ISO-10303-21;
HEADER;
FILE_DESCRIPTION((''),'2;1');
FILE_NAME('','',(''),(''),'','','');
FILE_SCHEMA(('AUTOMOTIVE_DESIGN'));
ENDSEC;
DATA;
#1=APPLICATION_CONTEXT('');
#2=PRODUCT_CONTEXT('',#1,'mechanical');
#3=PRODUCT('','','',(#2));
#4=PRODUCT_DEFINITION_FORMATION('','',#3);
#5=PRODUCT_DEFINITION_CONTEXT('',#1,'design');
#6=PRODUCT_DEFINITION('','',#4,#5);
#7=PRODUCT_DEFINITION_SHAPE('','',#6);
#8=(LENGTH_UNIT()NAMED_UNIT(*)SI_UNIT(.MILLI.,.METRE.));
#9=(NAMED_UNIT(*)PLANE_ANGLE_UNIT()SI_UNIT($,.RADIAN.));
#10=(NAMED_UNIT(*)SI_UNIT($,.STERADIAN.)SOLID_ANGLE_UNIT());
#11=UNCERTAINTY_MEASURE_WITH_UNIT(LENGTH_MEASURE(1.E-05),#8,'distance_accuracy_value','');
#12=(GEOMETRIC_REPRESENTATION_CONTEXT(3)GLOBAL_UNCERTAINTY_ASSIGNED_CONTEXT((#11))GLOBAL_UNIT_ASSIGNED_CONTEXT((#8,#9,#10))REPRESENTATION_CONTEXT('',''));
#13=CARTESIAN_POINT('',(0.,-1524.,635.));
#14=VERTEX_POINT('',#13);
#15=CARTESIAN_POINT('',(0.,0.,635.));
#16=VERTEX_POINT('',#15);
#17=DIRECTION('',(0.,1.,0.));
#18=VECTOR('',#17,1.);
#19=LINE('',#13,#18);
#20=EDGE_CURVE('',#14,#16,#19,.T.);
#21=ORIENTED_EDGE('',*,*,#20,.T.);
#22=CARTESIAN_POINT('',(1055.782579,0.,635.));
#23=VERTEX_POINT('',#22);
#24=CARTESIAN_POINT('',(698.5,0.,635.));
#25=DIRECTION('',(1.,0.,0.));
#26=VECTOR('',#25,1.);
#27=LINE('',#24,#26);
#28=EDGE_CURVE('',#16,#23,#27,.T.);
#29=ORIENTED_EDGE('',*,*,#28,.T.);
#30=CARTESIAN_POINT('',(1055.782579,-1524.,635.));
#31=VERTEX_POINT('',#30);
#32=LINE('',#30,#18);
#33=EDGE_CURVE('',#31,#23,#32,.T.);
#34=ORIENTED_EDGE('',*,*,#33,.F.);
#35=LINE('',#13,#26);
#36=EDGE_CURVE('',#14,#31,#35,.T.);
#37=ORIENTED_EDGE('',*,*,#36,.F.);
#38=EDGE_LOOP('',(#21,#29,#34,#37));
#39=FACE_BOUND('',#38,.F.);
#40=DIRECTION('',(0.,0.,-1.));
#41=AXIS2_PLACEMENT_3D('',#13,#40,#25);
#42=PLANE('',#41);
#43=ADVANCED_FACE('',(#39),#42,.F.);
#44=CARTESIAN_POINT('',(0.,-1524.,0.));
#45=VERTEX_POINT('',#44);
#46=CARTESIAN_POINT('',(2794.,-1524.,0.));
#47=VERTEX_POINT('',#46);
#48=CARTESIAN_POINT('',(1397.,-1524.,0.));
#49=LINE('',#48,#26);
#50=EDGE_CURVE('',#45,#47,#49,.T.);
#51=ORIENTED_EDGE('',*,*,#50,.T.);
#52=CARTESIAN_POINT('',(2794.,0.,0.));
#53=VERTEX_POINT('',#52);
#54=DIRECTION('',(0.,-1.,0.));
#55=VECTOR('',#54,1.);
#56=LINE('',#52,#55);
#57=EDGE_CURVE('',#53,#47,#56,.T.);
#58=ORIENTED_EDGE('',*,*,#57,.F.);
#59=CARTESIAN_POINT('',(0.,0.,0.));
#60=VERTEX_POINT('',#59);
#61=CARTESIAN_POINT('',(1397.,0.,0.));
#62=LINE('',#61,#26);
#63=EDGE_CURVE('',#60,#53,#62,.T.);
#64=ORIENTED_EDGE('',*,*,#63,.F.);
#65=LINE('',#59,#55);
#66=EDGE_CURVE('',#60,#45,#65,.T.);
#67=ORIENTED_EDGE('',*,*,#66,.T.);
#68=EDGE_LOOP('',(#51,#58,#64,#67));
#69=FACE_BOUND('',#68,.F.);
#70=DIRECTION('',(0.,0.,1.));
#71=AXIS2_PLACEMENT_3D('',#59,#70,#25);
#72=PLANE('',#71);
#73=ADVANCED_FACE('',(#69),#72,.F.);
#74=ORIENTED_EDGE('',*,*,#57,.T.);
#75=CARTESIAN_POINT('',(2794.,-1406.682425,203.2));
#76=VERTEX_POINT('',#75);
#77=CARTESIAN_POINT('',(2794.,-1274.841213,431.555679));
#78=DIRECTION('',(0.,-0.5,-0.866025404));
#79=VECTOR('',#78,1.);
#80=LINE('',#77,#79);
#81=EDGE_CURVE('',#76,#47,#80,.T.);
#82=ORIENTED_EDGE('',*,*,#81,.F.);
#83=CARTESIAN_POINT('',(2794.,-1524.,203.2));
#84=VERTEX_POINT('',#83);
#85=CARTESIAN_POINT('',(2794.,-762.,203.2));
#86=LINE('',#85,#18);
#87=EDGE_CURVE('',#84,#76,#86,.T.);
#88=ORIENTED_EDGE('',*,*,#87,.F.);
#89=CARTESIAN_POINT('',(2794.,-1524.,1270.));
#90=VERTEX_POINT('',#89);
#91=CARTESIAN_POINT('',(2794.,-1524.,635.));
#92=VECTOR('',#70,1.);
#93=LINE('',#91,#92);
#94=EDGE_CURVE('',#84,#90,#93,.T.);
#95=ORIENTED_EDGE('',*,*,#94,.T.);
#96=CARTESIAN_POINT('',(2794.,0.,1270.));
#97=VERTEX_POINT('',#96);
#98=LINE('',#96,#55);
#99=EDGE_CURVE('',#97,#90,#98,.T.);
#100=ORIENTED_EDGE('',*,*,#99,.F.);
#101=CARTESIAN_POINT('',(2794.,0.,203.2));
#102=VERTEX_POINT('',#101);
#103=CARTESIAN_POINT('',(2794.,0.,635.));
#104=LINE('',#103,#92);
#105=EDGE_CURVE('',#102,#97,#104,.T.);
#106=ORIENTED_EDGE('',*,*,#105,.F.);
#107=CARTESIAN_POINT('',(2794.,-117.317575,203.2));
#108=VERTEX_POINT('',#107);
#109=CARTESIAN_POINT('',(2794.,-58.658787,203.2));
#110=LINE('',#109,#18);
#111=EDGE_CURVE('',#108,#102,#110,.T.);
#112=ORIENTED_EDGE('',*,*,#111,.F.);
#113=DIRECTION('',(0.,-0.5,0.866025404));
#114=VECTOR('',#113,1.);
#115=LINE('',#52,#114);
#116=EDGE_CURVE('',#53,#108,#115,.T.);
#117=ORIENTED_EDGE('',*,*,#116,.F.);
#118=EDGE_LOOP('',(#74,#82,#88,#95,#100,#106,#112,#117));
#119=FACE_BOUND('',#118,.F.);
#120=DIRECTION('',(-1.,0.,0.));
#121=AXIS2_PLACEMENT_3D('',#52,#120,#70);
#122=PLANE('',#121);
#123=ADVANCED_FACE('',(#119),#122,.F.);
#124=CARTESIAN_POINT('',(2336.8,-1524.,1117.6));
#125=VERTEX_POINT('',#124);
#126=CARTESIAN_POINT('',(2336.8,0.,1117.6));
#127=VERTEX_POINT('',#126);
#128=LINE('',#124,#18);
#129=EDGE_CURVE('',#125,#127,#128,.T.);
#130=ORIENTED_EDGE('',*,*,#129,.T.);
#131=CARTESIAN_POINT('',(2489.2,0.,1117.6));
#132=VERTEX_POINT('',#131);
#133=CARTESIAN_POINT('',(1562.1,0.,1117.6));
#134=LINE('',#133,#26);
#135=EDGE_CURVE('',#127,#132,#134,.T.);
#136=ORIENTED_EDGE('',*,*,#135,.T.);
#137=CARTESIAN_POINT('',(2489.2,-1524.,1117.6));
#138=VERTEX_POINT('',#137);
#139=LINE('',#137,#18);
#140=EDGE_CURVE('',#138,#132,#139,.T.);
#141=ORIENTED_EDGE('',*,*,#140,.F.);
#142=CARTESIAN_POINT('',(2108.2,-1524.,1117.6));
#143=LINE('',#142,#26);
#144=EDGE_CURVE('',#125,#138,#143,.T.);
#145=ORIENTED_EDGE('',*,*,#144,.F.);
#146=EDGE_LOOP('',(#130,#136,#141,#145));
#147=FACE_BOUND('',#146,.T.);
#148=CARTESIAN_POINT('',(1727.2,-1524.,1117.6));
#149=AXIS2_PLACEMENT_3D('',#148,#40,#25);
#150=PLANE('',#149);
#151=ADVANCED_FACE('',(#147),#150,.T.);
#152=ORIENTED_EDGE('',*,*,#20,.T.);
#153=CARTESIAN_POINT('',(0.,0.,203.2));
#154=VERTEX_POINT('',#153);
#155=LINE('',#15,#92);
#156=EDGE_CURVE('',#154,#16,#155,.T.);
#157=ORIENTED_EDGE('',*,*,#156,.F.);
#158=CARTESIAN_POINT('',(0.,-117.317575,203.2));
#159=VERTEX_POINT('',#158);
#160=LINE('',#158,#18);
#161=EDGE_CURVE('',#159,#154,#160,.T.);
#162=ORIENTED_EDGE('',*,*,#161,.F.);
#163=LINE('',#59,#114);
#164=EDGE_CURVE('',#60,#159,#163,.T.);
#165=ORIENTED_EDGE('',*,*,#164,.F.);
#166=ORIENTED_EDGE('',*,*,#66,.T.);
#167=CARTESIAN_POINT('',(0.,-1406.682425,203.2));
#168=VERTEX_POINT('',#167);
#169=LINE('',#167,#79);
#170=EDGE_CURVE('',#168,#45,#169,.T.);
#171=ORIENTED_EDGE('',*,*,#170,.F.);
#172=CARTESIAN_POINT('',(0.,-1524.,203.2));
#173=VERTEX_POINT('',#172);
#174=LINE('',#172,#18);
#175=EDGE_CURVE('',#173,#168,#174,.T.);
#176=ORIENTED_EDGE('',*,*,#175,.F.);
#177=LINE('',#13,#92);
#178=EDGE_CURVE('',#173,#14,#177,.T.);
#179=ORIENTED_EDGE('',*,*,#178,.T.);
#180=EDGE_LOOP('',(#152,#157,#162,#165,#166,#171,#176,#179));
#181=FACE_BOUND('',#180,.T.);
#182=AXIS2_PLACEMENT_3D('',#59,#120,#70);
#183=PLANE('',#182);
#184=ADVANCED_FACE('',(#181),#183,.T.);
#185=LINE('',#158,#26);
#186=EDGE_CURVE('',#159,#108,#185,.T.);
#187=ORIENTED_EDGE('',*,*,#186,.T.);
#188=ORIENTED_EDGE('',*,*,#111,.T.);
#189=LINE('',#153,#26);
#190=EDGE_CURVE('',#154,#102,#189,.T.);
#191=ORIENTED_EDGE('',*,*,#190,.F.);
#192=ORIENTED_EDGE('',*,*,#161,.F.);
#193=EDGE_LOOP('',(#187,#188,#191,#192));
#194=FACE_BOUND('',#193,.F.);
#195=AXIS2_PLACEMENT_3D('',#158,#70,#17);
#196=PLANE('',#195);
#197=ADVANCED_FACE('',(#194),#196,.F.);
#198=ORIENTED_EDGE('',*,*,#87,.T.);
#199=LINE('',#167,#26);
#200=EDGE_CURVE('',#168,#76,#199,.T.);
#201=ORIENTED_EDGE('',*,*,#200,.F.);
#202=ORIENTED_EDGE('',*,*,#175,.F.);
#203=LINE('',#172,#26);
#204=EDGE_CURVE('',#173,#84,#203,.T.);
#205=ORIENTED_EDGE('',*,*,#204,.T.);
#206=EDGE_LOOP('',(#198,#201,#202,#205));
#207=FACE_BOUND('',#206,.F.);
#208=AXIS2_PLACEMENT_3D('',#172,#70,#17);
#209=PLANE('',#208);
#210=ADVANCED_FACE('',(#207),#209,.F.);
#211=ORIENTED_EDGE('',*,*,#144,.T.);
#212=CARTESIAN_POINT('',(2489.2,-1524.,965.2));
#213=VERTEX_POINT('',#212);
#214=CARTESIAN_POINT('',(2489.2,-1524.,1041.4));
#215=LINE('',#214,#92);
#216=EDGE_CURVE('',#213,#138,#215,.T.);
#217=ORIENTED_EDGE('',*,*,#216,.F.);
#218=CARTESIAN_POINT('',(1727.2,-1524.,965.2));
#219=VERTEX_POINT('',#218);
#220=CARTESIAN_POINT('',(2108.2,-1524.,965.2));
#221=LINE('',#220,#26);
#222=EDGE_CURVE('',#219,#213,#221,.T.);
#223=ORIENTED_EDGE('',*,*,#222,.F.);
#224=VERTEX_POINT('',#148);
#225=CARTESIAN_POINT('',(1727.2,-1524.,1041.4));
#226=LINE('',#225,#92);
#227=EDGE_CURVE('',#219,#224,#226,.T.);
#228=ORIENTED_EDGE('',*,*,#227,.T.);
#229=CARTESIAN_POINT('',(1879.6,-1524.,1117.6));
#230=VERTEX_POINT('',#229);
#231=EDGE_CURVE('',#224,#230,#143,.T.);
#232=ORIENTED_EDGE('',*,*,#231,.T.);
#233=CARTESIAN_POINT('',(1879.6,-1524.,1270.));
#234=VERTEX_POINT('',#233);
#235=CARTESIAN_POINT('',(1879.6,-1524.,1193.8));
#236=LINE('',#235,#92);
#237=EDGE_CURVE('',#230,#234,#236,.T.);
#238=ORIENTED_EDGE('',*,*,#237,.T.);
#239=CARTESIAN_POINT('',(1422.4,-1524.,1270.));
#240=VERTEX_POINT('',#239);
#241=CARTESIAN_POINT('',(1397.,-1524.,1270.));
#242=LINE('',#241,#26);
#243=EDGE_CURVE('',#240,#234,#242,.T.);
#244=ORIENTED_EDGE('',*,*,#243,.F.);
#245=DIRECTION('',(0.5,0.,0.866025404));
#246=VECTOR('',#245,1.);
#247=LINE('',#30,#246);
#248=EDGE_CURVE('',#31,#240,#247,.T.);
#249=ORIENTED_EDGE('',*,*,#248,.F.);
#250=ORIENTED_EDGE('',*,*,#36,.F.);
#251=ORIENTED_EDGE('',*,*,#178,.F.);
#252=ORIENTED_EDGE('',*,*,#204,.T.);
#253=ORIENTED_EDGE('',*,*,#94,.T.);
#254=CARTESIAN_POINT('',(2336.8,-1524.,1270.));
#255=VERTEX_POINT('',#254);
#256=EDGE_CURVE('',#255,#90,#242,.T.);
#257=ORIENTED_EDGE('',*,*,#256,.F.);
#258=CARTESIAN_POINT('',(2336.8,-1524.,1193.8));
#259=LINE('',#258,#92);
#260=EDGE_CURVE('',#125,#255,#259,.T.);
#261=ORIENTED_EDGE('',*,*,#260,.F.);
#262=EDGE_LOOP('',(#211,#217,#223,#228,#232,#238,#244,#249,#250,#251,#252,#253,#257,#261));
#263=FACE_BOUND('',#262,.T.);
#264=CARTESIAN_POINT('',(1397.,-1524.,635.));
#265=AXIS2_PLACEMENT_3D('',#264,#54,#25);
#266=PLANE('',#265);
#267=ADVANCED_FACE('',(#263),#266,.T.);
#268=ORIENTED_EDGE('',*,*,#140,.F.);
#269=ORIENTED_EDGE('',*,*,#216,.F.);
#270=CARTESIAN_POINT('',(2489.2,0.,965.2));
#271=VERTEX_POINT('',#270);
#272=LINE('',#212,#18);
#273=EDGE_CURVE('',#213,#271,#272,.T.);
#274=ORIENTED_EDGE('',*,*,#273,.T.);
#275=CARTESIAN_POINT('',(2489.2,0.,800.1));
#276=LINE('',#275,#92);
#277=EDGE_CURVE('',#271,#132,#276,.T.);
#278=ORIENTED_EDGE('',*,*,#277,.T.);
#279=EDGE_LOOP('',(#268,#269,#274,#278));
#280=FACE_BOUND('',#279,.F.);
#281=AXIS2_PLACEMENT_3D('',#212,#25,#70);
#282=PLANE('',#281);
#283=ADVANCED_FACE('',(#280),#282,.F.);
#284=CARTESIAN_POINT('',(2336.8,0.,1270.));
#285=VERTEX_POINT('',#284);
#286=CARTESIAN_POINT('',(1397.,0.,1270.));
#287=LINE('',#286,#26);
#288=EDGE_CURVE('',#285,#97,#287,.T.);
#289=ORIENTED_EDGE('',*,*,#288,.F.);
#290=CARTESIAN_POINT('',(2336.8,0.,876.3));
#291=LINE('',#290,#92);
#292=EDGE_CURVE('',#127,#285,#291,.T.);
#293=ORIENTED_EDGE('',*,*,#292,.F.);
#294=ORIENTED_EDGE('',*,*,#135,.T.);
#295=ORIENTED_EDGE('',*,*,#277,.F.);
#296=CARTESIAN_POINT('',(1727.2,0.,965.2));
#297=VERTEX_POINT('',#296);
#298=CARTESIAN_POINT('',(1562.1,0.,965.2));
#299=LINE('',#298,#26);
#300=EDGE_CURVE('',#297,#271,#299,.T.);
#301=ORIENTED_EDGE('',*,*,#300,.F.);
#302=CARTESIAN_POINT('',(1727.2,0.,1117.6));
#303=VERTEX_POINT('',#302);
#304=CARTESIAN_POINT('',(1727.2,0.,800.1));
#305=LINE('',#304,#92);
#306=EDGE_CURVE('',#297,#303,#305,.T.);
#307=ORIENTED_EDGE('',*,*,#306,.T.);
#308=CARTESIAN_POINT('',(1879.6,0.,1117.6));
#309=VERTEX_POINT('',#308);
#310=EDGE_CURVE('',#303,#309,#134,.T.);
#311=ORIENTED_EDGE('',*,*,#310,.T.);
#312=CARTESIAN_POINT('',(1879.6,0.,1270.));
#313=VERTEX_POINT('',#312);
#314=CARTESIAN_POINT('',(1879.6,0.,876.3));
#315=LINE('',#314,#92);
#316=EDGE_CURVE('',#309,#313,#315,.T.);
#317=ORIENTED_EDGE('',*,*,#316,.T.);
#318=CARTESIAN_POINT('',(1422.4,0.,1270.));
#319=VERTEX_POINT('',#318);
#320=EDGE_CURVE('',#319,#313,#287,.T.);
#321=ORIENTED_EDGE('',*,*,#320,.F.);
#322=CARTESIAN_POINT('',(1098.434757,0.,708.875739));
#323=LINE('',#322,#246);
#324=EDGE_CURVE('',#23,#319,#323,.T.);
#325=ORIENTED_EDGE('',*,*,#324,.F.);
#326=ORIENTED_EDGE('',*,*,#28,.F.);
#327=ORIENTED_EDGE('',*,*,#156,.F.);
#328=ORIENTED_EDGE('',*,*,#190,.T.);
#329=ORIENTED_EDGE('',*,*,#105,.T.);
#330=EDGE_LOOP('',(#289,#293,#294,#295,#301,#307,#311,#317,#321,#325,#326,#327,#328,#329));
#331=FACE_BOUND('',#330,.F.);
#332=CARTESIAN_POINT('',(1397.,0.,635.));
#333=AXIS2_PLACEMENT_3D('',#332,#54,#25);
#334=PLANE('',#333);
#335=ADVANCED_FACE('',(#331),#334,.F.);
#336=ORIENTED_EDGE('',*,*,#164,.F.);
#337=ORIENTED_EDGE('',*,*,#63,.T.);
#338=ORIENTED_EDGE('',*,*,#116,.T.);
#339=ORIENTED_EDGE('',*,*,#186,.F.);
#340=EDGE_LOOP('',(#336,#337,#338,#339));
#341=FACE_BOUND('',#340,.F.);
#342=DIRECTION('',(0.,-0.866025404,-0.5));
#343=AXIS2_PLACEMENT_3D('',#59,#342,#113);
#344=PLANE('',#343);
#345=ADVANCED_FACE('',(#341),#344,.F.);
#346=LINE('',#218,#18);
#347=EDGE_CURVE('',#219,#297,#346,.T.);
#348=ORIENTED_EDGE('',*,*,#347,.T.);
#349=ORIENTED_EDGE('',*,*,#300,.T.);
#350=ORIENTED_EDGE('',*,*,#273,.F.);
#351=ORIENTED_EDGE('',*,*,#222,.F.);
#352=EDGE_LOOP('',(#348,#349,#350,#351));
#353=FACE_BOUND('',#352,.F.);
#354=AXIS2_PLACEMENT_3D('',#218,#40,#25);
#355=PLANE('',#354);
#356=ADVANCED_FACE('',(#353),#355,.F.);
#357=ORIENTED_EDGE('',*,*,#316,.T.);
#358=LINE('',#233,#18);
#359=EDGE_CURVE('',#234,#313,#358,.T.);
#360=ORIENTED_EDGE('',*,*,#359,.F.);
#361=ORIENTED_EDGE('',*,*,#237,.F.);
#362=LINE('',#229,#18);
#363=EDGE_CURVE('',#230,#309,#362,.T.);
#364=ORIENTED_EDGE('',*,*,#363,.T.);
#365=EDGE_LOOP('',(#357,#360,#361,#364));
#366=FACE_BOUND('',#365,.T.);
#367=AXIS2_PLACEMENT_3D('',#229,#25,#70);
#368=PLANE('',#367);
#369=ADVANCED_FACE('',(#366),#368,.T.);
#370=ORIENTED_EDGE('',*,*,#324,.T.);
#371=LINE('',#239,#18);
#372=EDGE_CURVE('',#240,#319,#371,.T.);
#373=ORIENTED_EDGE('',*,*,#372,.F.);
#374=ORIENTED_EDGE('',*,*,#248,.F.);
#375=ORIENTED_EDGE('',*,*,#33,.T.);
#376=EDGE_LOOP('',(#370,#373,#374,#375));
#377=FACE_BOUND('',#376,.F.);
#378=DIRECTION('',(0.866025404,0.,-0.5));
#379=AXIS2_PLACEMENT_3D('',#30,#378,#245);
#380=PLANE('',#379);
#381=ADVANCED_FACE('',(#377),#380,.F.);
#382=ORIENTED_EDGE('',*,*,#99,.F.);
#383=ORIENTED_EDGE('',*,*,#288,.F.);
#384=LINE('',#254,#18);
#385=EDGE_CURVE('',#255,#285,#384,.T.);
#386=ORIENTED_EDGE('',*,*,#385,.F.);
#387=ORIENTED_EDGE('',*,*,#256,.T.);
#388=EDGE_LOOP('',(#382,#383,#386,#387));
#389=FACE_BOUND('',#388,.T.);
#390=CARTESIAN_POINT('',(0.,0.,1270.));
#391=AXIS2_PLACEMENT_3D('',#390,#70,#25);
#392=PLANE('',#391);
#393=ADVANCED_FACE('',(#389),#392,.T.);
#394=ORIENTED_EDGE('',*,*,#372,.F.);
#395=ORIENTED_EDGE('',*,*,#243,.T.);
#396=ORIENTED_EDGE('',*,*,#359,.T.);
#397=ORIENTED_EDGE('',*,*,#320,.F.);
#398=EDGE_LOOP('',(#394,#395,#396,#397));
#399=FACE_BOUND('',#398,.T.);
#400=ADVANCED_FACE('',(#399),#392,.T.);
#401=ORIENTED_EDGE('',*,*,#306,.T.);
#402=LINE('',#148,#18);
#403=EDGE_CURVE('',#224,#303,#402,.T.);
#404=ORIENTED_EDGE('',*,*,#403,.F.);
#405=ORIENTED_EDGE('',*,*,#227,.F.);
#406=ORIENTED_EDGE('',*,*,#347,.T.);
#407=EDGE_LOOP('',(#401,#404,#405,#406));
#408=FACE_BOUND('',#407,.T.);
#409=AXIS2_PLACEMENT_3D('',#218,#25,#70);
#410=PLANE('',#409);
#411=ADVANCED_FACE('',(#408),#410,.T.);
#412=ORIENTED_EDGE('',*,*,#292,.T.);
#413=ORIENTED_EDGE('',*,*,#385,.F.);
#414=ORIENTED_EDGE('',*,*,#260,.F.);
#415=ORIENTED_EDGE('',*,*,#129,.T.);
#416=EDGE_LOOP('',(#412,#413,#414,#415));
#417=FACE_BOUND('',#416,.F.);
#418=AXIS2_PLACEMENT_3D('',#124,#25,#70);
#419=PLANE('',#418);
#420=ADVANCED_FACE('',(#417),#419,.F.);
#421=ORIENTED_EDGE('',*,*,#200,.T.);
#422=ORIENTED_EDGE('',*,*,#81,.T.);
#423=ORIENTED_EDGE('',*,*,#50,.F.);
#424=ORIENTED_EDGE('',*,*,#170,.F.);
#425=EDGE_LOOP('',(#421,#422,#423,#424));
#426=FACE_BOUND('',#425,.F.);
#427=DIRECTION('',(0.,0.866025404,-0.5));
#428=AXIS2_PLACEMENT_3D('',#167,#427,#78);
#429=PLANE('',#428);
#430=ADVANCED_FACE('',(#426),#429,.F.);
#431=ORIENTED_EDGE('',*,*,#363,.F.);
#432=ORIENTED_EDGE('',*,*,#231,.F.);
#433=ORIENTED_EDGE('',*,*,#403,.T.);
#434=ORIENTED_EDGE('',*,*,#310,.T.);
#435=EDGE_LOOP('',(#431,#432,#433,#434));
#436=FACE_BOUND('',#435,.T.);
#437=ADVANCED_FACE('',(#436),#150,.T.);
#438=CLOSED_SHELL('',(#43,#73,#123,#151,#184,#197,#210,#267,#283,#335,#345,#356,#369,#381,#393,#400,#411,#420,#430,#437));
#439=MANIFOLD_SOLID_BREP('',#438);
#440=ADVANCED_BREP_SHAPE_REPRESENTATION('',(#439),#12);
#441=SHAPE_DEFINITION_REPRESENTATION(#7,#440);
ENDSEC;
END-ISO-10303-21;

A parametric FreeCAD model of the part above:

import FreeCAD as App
import Part
import Sketcher
from FreeCAD import Vector
Q = App.Units.Quantity


def add_polygon(sketch, points):
    """Adds a closed chain of lines whose ends are joined by coincident constraints."""
    first, n = sketch.GeometryCount, len(points)
    for a, b in zip(points, points[1:] + points[:1]):
        sketch.addGeometry(Part.LineSegment(App.Vector(*a, 0), App.Vector(*b, 0)), False)
    for i in range(n):
        sketch.addConstraint(Sketcher.Constraint("Coincident", first + i, 2, first + (i + 1) % n, 1))

doc = App.newDocument("Part")
body = doc.addObject("PartDesign::Body", "Body")

# Sketch on XZ plane
sketch1 = body.newObject("Sketcher::SketchObject", "Sketch")
sketch1.AttachmentSupport = (doc.getObject("XZ_Plane"), [""])
sketch1.MapMode = "FlatFace"
add_polygon(sketch1, [(0, 1270), (0, 0), (2794, 0), (2794, 1270)])  # lines 0-3
sketch1.addConstraint(Sketcher.Constraint("Vertical", 0))
sketch1.addConstraint(Sketcher.Constraint("Horizontal", 1))
sketch1.addConstraint(Sketcher.Constraint("Vertical", 2))
sketch1.addConstraint(Sketcher.Constraint("Horizontal", 3))
sketch1.addConstraint(Sketcher.Constraint("Coincident", 0, 2, -1, 1))
sketch1.addConstraint(Sketcher.Constraint("DistanceX", 1, 1, 1, 2, Q("110 in")))
sketch1.addConstraint(Sketcher.Constraint("DistanceY", 0, 2, 0, 1, Q("50 in")))
pad1 = body.newObject("PartDesign::Pad", "Pad")
pad1.Profile = sketch1
pad1.Length = Q("60 in")

# Sketch on XZ plane
sketch2 = body.newObject("Sketcher::SketchObject", "Sketch001")
sketch2.AttachmentSupport = (doc.getObject("XZ_Plane"), [""])
sketch2.MapMode = "FlatFace"
sketch2.AttachmentOffset = App.Placement(Vector(0, 0, 60 * 25.4), App.Rotation())
add_polygon(sketch2, [(1727, 1118), (1727, 965), (2489, 965), (2489, 1118)])  # lines 0-3
sketch2.addConstraint(Sketcher.Constraint("Vertical", 0))
sketch2.addConstraint(Sketcher.Constraint("Horizontal", 1))
sketch2.addConstraint(Sketcher.Constraint("Vertical", 2))
sketch2.addConstraint(Sketcher.Constraint("Horizontal", 3))
sketch2.addConstraint(Sketcher.Constraint("DistanceX", 1, 1, 1, 2, Q("30 in")))
sketch2.addConstraint(Sketcher.Constraint("DistanceY", 0, 2, 0, 1, Q("6 in")))
sketch2.addConstraint(Sketcher.Constraint("DistanceX", -1, 1, 0, 2, Q("68 in")))
sketch2.addConstraint(Sketcher.Constraint("DistanceY", -1, 1, 0, 2, Q("38 in")))
pocket1 = body.newObject("PartDesign::Pocket", "Pocket")
pocket1.Profile = sketch2
pocket1.Type = "ThroughAll"

# Sketch on XZ plane
sketch3 = body.newObject("Sketcher::SketchObject", "Sketch002")
sketch3.AttachmentSupport = (doc.getObject("XZ_Plane"), [""])
sketch3.MapMode = "FlatFace"
sketch3.AttachmentOffset = App.Placement(Vector(0, 0, 60 * 25.4), App.Rotation())
add_polygon(sketch3, [(1880, 1270), (1880, 1118), (2337, 1118), (2337, 1270)])  # lines 0-3
sketch3.addConstraint(Sketcher.Constraint("Vertical", 0))
sketch3.addConstraint(Sketcher.Constraint("Horizontal", 1))
sketch3.addConstraint(Sketcher.Constraint("Vertical", 2))
sketch3.addConstraint(Sketcher.Constraint("Horizontal", 3))
sketch3.addConstraint(Sketcher.Constraint("DistanceX", 1, 1, 1, 2, Q("18 in")))
sketch3.addConstraint(Sketcher.Constraint("DistanceY", 0, 2, 0, 1, Q("6 in")))
sketch3.addConstraint(Sketcher.Constraint("DistanceX", -1, 1, 0, 2, Q("74 in")))
sketch3.addConstraint(Sketcher.Constraint("DistanceY", -1, 1, 0, 2, Q("44 in")))
pocket2 = body.newObject("PartDesign::Pocket", "Pocket001")
pocket2.Profile = sketch3
pocket2.Type = "ThroughAll"

# Sketch on XZ plane
sketch4 = body.newObject("Sketcher::SketchObject", "Sketch003")
sketch4.AttachmentSupport = (doc.getObject("XZ_Plane"), [""])
sketch4.MapMode = "FlatFace"
sketch4.AttachmentOffset = App.Placement(Vector(0, 0, 60 * 25.4), App.Rotation())
add_polygon(sketch4, [(1056, 635), (1422, 1270), (0, 1270), (0, 635)])  # lines 0-3
sketch4.addConstraint(Sketcher.Constraint("Horizontal", 1))
sketch4.addConstraint(Sketcher.Constraint("Vertical", 2))
sketch4.addConstraint(Sketcher.Constraint("Horizontal", 3))
sketch4.addConstraint(Sketcher.Constraint("PointOnObject", 1, 2, -2))
sketch4.addConstraint(Sketcher.Constraint("DistanceX", 1, 2, 1, 1, Q("56 in")))
sketch4.addConstraint(Sketcher.Constraint("DistanceY", 2, 2, 2, 1, Q("25 in")))
sketch4.addConstraint(Sketcher.Constraint("DistanceY", -1, 1, 0, 2, Q("50 in")))
sketch4.addConstraint(Sketcher.Constraint("Angle", 0, Q("60 deg")))
pocket3 = body.newObject("PartDesign::Pocket", "Pocket002")
pocket3.Profile = sketch4
pocket3.Type = "ThroughAll"

# Sketch on YZ plane
sketch5 = body.newObject("Sketcher::SketchObject", "Sketch004")
sketch5.AttachmentSupport = (doc.getObject("YZ_Plane"), [""])
sketch5.MapMode = "FlatFace"
add_polygon(sketch5, [(-1407, 203), (-1524, 0), (-1524, 203)])  # lines 0-2
sketch5.addConstraint(Sketcher.Constraint("Vertical", 1))
sketch5.addConstraint(Sketcher.Constraint("Horizontal", 2))
sketch5.addConstraint(Sketcher.Constraint("PointOnObject", 0, 2, -1))
sketch5.addConstraint(Sketcher.Constraint("DistanceY", 1, 1, 1, 2, Q("8 in")))
sketch5.addConstraint(Sketcher.Constraint("DistanceX", 0, 2, -1, 1, Q("60 in")))
sketch5.addConstraint(Sketcher.Constraint("Angle", 0, Q("-120 deg")))
pocket4 = body.newObject("PartDesign::Pocket", "Pocket003")
pocket4.Profile = sketch5
pocket4.Type = "ThroughAll"
pocket4.Reversed = True

# Sketch on YZ plane
sketch6 = body.newObject("Sketcher::SketchObject", "Sketch005")
sketch6.AttachmentSupport = (doc.getObject("YZ_Plane"), [""])
sketch6.MapMode = "FlatFace"
add_polygon(sketch6, [(0, 203), (0, 0), (-117, 203)])  # lines 0-2
sketch6.addConstraint(Sketcher.Constraint("Vertical", 0))
sketch6.addConstraint(Sketcher.Constraint("Horizontal", 2))
sketch6.addConstraint(Sketcher.Constraint("Coincident", 0, 2, -1, 1))
sketch6.addConstraint(Sketcher.Constraint("DistanceY", 0, 2, 0, 1, Q("8 in")))
sketch6.addConstraint(Sketcher.Constraint("Angle", 1, Q("120 deg")))
pocket5 = body.newObject("PartDesign::Pocket", "Pocket004")
pocket5.Profile = sketch6
pocket5.Type = "ThroughAll"
pocket5.Reversed = True

doc.recompute()
